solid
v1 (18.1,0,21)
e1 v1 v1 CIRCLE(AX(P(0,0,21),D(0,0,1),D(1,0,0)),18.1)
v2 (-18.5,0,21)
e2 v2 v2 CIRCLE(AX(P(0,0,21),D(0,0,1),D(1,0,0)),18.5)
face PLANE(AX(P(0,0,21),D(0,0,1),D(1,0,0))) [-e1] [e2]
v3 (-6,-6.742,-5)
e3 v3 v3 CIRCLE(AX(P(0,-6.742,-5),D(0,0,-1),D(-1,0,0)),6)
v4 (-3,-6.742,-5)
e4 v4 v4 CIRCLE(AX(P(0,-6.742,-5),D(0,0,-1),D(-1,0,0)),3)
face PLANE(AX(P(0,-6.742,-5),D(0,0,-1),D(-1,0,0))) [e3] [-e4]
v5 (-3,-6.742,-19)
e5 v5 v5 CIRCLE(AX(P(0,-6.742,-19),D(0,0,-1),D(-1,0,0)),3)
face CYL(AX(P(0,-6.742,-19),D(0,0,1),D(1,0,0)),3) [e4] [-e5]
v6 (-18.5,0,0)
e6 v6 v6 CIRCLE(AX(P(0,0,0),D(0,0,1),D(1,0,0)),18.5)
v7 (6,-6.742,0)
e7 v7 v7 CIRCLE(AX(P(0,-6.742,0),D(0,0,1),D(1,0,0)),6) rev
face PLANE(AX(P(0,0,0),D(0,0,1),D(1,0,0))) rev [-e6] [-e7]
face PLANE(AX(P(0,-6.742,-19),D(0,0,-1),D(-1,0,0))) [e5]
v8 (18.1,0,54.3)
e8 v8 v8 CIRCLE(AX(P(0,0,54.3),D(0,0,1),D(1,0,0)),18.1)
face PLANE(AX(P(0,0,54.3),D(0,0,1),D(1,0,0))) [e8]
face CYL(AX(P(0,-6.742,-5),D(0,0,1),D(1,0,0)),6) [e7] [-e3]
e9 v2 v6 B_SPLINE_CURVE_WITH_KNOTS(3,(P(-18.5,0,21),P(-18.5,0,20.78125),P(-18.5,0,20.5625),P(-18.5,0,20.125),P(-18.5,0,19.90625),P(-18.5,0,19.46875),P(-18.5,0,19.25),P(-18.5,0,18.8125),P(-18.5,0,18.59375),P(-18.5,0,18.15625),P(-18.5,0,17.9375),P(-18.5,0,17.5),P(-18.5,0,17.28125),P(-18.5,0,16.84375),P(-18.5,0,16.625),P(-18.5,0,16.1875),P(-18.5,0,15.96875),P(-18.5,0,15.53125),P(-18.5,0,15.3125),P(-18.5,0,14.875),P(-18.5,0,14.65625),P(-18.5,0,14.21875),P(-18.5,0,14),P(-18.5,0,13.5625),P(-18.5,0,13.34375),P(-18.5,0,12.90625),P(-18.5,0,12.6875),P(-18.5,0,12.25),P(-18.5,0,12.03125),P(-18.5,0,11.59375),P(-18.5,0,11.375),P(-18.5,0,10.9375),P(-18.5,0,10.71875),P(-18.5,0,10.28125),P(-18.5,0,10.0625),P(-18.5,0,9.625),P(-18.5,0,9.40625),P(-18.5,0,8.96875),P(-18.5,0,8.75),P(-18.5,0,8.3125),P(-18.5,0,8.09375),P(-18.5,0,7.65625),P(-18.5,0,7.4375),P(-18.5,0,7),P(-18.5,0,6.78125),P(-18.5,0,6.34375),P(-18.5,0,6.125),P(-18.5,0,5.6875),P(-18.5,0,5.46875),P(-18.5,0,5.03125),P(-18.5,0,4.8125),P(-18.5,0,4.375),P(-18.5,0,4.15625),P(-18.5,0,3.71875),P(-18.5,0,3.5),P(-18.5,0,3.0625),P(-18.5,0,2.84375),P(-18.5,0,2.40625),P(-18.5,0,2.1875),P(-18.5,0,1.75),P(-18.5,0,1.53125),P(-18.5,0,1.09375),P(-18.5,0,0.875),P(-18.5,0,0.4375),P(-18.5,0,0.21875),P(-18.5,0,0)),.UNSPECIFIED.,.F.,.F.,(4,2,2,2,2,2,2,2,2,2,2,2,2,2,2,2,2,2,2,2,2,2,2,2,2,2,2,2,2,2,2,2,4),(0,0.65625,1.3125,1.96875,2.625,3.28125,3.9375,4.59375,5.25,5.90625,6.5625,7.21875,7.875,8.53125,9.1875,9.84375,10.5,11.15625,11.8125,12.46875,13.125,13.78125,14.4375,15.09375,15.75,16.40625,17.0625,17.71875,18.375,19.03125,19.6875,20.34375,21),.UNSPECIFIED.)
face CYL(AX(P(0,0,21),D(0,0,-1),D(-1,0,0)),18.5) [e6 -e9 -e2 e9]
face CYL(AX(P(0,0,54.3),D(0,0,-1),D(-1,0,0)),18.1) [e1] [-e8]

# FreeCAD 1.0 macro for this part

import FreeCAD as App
import Part
import Sketcher
from FreeCAD import Vector

doc = App.newDocument("Part")
body = doc.addObject("PartDesign::Body", "Body")

sketch1 = body.newObject("Sketcher::SketchObject", "Sketch")
sketch1.AttachmentSupport = (doc.getObject("XY_Plane"), [""])
sketch1.MapMode = "FlatFace"
sketch1.addGeometry(Part.Circle(Vector(0, 0, 0), Vector(0, 0, 1), 18), False)
sketch1.addConstraint([
    Sketcher.Constraint("Coincident", 0, 3, -1, 1),
    Sketcher.Constraint("Diameter", 0, 37.0),
])
pad1 = body.newObject("PartDesign::Pad", "Pad")
pad1.Profile = sketch1
pad1.Length = 21

sketch2 = body.newObject("Sketcher::SketchObject", "Sketch001")
sketch2.AttachmentSupport = (doc.getObject("XY_Plane"), [""])
sketch2.MapMode = "FlatFace"
sketch2.AttachmentOffset = App.Placement(Vector(0, 0, 21), App.Rotation())
sketch2.addGeometry(Part.Circle(Vector(0, 0, 0), Vector(0, 0, 1), 18), False)
sketch2.addConstraint([
    Sketcher.Constraint("Coincident", 0, 3, -1, 1),
    Sketcher.Constraint("Diameter", 0, 36.2),
])
pad2 = body.newObject("PartDesign::Pad", "Pad001")
pad2.Profile = sketch2
pad2.Length = 33.3

sketch3 = body.newObject("Sketcher::SketchObject", "Sketch002")
sketch3.AttachmentSupport = (doc.getObject("XY_Plane"), [""])
sketch3.MapMode = "FlatFace"
sketch3.addGeometry(Part.Circle(Vector(0, -7, 0), Vector(0, 0, 1), 6), False)
sketch3.addConstraint([
    Sketcher.Constraint("PointOnObject", 0, 3, -2),
    Sketcher.Constraint("Diameter", 0, 12.0),
    Sketcher.Constraint("DistanceY", 0, 3, -1, 1, 6.742),
])
pad3 = body.newObject("PartDesign::Pad", "Pad002")
pad3.Profile = sketch3
pad3.Length = 5
pad3.Reversed = True

sketch4 = body.newObject("Sketcher::SketchObject", "Sketch003")
sketch4.AttachmentSupport = (doc.getObject("XY_Plane"), [""])
sketch4.MapMode = "FlatFace"
sketch4.AttachmentOffset = App.Placement(Vector(0, 0, -5), App.Rotation())
sketch4.addGeometry(Part.Circle(Vector(0, -6.7, 0), Vector(0, 0, 1), 3), False)
sketch4.addConstraint([
    Sketcher.Constraint("PointOnObject", 0, 3, -2),
    Sketcher.Constraint("Diameter", 0, 6.0),
    Sketcher.Constraint("DistanceY", 0, 3, -1, 1, 6.742),
])
pad4 = body.newObject("PartDesign::Pad", "Pad003")
pad4.Profile = sketch4
pad4.Length = 14
pad4.Reversed = True

doc.recompute()
